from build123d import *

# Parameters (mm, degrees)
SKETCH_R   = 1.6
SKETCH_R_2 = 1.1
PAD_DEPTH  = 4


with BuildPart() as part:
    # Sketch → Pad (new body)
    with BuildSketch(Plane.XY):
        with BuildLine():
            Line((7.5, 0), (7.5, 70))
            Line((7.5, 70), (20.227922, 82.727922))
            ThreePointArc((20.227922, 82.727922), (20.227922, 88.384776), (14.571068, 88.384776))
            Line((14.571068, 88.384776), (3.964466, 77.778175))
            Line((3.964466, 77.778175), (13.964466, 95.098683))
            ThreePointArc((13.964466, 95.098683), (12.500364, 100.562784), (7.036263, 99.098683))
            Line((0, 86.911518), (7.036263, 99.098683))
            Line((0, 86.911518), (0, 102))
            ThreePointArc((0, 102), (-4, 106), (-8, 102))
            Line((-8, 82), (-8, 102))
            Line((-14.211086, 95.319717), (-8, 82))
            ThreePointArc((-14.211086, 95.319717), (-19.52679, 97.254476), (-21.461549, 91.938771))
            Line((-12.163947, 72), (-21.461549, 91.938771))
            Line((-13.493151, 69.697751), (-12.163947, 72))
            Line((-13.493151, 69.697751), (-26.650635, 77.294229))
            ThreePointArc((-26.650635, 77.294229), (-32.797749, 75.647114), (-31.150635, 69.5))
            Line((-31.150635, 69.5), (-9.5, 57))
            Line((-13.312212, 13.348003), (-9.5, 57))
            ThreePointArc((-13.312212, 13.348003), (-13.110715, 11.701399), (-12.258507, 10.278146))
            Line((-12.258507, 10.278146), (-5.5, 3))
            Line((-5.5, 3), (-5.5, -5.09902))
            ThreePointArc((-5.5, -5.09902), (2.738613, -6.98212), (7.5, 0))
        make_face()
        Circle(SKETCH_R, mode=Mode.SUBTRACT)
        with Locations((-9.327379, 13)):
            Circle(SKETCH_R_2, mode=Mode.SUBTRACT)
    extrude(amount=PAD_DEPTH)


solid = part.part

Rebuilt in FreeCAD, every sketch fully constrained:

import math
import FreeCAD as App
import Part
import Sketcher

V = App.Vector

doc = App.newDocument("Part")
params = doc.addObject("Spreadsheet::Sheet", "Params")
for row, (alias, value) in enumerate([
    ("sketch1_radius", "4 mm"),
    ("sketch1_radius2", "4 mm"),
    ("sketch1_radius3", "4 mm"),
    ("sketch1_radius4", "4 mm"),
    ("sketch1_diameter", "3.2 mm"),
    ("pad1_length", "4 mm"),
], start=1):
    params.set(f"A{row}", alias)
    params.set(f"B{row}", "=" + value)
    params.setAlias(f"B{row}", alias)

body = doc.addObject("PartDesign::Body", "Body")

# Sketch on XY plane
sketch1 = body.newObject("Sketcher::SketchObject", "Sketch")
sketch1.AttachmentSupport = (doc.getObject("XY_Plane"), [""])
sketch1.MapMode = "FlatFace"
sketch1.addGeometry([
    Part.LineSegment(V(7.5, 0, 0), V(7.5, 70, 0)),  # 0
    Part.LineSegment(V(7.5, 70, 0), V(20.227922, 82.727922, 0)),  # 1
    Part.ArcOfCircle(Part.Circle(V(17.399495, 85.556349, 0), V(0, 0, 1), 4), math.radians(-45), math.radians(135)),  # 2
    Part.LineSegment(V(14.571068, 88.384776, 0), V(3.964466, 77.778175, 0)),  # 3
    Part.LineSegment(V(3.964466, 77.778175, 0), V(13.964466, 95.098683, 0)),  # 4
    Part.ArcOfCircle(Part.Circle(V(10.500364, 97.098682, 0), V(0, 0, 1), 4), math.radians(-29.999991), math.radians(149.999989)),  # 5
    Part.LineSegment(V(7.036263, 99.098683, 0), V(0, 86.911518, 0)),  # 6
    Part.LineSegment(V(0, 86.911518, 0), V(0, 102, 0)),  # 7
    Part.ArcOfCircle(Part.Circle(V(-4, 102, 0), V(0, 0, 1), 4), math.radians(0), math.radians(180)),  # 8
    Part.LineSegment(V(-8, 102, 0), V(-8, 82, 0)),  # 9
    Part.LineSegment(V(-8, 82, 0), V(-14.211086, 95.319717, 0)),  # 10
    Part.ArcOfCircle(Part.Circle(V(-17.836318, 93.629244, 0), V(0, 0, 1), 4), math.radians(24.999994), math.radians(205.000001)),  # 11
    Part.LineSegment(V(-21.461549, 91.938771, 0), V(-12.163947, 72, 0)),  # 12
    Part.LineSegment(V(-12.163947, 72, 0), V(-13.493151, 69.697751, 0)),  # 13
    Part.LineSegment(V(-13.493151, 69.697751, 0), V(-26.650635, 77.294229, 0)),  # 14
    Part.ArcOfCircle(Part.Circle(V(-28.900634, 73.397114, 0), V(0, 0, 1), 4.5), math.radians(60.00001), math.radians(239.999992)),  # 15
    Part.LineSegment(V(-31.150635, 69.5, 0), V(-9.5, 57, 0)),  # 16
    Part.LineSegment(V(-9.5, 57, 0), V(-13.312212, 13.348003, 0)),  # 17
    Part.ArcOfCircle(Part.Circle(V(-9.327373, 13.000002, 0), V(0, 0, 1), 4.000006), math.radians(175.008951), math.radians(222.879833)),  # 18
    Part.LineSegment(V(-12.258507, 10.278146, 0), V(-5.5, 3, 0)),  # 19
    Part.LineSegment(V(-5.5, 3, 0), V(-5.5, -5.09902, 0)),  # 20
    Part.ArcOfCircle(Part.Circle(V(0, 0, 0), V(0, 0, 1), 7.5), math.radians(-137.166567), math.radians(-0.000001)),  # 21
    Part.Circle(V(0, 0, 0), V(0, 0, 1), 1.6),  # 22
    Part.Circle(V(-9.327379, 13, 0), V(0, 0, 1), 1.1),  # 23
], False)
sketch1.addConstraint([
    Sketcher.Constraint("Coincident", 0, 2, 1, 1),
    Sketcher.Constraint("Coincident", 1, 2, 2, 1),
    Sketcher.Constraint("Coincident", 2, 2, 3, 1),
    Sketcher.Constraint("Coincident", 3, 2, 4, 1),
    Sketcher.Constraint("Coincident", 4, 2, 5, 1),
    Sketcher.Constraint("Coincident", 5, 2, 6, 1),
    Sketcher.Constraint("Coincident", 6, 2, 7, 1),
    Sketcher.Constraint("Coincident", 7, 2, 8, 1),
    Sketcher.Constraint("Coincident", 8, 2, 9, 1),
    Sketcher.Constraint("Coincident", 9, 2, 10, 1),
    Sketcher.Constraint("Coincident", 10, 2, 11, 1),
    Sketcher.Constraint("Coincident", 11, 2, 12, 1),
    Sketcher.Constraint("Coincident", 12, 2, 13, 1),
    Sketcher.Constraint("Coincident", 13, 2, 14, 1),
    Sketcher.Constraint("Coincident", 14, 2, 15, 1),
    Sketcher.Constraint("Coincident", 15, 2, 16, 1),
    Sketcher.Constraint("Coincident", 16, 2, 17, 1),
    Sketcher.Constraint("Coincident", 17, 2, 18, 1),
    Sketcher.Constraint("Coincident", 18, 2, 19, 1),
    Sketcher.Constraint("Coincident", 19, 2, 20, 1),
    Sketcher.Constraint("Coincident", 20, 2, 21, 1),
    Sketcher.Constraint("Coincident", 21, 2, 0, 1),
    Sketcher.Constraint("Vertical", 0),
    Sketcher.Constraint("Vertical", 7),
    Sketcher.Constraint("Vertical", 9),
    Sketcher.Constraint("Vertical", 20),
    Sketcher.Constraint("Coincident", 21, 3, -1, 1),
    Sketcher.Constraint("Coincident", 22, 3, -1, 1),
    Sketcher.Constraint("Coincident", 23, 3, 18, 3),
    Sketcher.Constraint("PointOnObject", 6, 2, -2),
    Sketcher.Constraint("PointOnObject", 21, 2, -1),
    Sketcher.Constraint("Radius", 2, 4.0),
    Sketcher.Constraint("Radius", 5, 4.0),
    Sketcher.Constraint("Radius", 8, 4.0),
    Sketcher.Constraint("Radius", 11, 4.0),
    Sketcher.Constraint("Diameter", 22, 3.2),
    Sketcher.Constraint("Diameter", 23, 2.2),
    Sketcher.Constraint("Radius", 15, 4.5),
    Sketcher.Constraint("Radius", 21, 7.5),
    Sketcher.Constraint("DistanceY", 0, 1, 0, 2, 70.0),
    Sketcher.Constraint("DistanceY", 9, 2, 9, 1, 20.0),
    Sketcher.Constraint("Distance", 1, 18.0),
    Sketcher.Constraint("Distance", 3, 15.0),
    Sketcher.Constraint("Distance", 4, 20.0),
    Sketcher.Constraint("Distance", 12, 22.0),
    Sketcher.Constraint("Distance", 16, 25.0),
    Sketcher.Constraint("DistanceY", -1, 1, 8, 3, 102.0),
    Sketcher.Constraint("DistanceY", -1, 1, 23, 3, 13.0),
    Sketcher.Constraint("DistanceY", -1, 1, 7, 2, 102.0),
    Sketcher.Constraint("DistanceY", -1, 1, 8, 2, 102.0),
    Sketcher.Constraint("DistanceY", -1, 1, 12, 2, 72.0),
    Sketcher.Constraint("DistanceY", -1, 1, 16, 2, 57.0),
    Sketcher.Constraint("DistanceY", -1, 1, 19, 2, 3.0),
    Sketcher.Constraint("DistanceY", 4, 2, 5, 3, 1.999999),
    Sketcher.Constraint("DistanceY", 5, 3, 5, 2, 2.000001),
    Sketcher.Constraint("DistanceX", 16, 2, 0, 2, 17.0),
    Sketcher.Constraint("DistanceX", 19, 2, 21, 2, 13.0),
    Sketcher.Constraint("DistanceY", -1, 1, 15, 2, 69.5),
    Sketcher.Constraint("DistanceX", 15, 2, 14, 2, 4.5),
    Sketcher.Constraint("DistanceX", 15, 3, 14, 2, 2.249999),
    Sketcher.Constraint("Radius", 18, 4.000006),
    Sketcher.Constraint("DistanceX", 15, 3, 5, 3, 39.400999),
    Sketcher.Constraint("DistanceY", 18, 3, 17, 2, 0.348001),
    Sketcher.Constraint("DistanceY", 7, 1, 7, 2, 15.088482),
    Sketcher.Constraint("DistanceX", 3, 2, 2, 2, 10.606602),
    Sketcher.Constraint("DistanceX", 3, 2, 5, 3, 6.535898),
    Sketcher.Constraint("Distance", 10, 14.696682),
    Sketcher.Constraint("Distance", 13, 2.658408),
    Sketcher.Constraint("Distance", 19, 9.932212),
    Sketcher.Constraint("DistanceY", -1, 1, 2, 3, 85.556349),
    Sketcher.Constraint("DistanceX", 23, 3, -1, 1, 9.327379),
    Sketcher.Constraint("DistanceX", -1, 1, 1, 2, 20.227922),
    Sketcher.Constraint("DistanceX", 11, 2, -1, 1, 21.461549),
    Sketcher.Constraint("DistanceY", -1, 1, 11, 2, 91.938771),
    Sketcher.Constraint("DistanceX", 13, 2, -1, 1, 13.493151),
    Sketcher.Constraint("DistanceX", 11, 3, 5, 3, 28.336682),
])
sketch1.setExpression("Constraints[31]", "Params.sketch1_radius")
sketch1.setExpression("Constraints[32]", "Params.sketch1_radius2")
sketch1.setExpression("Constraints[33]", "Params.sketch1_radius3")
sketch1.setExpression("Constraints[34]", "Params.sketch1_radius4")
sketch1.setExpression("Constraints[35]", "Params.sketch1_diameter")
pad1 = body.newObject("PartDesign::Pad", "Pad")
pad1.Profile = sketch1
pad1.setExpression("Length", "Params.pad1_length")

doc.recompute()
